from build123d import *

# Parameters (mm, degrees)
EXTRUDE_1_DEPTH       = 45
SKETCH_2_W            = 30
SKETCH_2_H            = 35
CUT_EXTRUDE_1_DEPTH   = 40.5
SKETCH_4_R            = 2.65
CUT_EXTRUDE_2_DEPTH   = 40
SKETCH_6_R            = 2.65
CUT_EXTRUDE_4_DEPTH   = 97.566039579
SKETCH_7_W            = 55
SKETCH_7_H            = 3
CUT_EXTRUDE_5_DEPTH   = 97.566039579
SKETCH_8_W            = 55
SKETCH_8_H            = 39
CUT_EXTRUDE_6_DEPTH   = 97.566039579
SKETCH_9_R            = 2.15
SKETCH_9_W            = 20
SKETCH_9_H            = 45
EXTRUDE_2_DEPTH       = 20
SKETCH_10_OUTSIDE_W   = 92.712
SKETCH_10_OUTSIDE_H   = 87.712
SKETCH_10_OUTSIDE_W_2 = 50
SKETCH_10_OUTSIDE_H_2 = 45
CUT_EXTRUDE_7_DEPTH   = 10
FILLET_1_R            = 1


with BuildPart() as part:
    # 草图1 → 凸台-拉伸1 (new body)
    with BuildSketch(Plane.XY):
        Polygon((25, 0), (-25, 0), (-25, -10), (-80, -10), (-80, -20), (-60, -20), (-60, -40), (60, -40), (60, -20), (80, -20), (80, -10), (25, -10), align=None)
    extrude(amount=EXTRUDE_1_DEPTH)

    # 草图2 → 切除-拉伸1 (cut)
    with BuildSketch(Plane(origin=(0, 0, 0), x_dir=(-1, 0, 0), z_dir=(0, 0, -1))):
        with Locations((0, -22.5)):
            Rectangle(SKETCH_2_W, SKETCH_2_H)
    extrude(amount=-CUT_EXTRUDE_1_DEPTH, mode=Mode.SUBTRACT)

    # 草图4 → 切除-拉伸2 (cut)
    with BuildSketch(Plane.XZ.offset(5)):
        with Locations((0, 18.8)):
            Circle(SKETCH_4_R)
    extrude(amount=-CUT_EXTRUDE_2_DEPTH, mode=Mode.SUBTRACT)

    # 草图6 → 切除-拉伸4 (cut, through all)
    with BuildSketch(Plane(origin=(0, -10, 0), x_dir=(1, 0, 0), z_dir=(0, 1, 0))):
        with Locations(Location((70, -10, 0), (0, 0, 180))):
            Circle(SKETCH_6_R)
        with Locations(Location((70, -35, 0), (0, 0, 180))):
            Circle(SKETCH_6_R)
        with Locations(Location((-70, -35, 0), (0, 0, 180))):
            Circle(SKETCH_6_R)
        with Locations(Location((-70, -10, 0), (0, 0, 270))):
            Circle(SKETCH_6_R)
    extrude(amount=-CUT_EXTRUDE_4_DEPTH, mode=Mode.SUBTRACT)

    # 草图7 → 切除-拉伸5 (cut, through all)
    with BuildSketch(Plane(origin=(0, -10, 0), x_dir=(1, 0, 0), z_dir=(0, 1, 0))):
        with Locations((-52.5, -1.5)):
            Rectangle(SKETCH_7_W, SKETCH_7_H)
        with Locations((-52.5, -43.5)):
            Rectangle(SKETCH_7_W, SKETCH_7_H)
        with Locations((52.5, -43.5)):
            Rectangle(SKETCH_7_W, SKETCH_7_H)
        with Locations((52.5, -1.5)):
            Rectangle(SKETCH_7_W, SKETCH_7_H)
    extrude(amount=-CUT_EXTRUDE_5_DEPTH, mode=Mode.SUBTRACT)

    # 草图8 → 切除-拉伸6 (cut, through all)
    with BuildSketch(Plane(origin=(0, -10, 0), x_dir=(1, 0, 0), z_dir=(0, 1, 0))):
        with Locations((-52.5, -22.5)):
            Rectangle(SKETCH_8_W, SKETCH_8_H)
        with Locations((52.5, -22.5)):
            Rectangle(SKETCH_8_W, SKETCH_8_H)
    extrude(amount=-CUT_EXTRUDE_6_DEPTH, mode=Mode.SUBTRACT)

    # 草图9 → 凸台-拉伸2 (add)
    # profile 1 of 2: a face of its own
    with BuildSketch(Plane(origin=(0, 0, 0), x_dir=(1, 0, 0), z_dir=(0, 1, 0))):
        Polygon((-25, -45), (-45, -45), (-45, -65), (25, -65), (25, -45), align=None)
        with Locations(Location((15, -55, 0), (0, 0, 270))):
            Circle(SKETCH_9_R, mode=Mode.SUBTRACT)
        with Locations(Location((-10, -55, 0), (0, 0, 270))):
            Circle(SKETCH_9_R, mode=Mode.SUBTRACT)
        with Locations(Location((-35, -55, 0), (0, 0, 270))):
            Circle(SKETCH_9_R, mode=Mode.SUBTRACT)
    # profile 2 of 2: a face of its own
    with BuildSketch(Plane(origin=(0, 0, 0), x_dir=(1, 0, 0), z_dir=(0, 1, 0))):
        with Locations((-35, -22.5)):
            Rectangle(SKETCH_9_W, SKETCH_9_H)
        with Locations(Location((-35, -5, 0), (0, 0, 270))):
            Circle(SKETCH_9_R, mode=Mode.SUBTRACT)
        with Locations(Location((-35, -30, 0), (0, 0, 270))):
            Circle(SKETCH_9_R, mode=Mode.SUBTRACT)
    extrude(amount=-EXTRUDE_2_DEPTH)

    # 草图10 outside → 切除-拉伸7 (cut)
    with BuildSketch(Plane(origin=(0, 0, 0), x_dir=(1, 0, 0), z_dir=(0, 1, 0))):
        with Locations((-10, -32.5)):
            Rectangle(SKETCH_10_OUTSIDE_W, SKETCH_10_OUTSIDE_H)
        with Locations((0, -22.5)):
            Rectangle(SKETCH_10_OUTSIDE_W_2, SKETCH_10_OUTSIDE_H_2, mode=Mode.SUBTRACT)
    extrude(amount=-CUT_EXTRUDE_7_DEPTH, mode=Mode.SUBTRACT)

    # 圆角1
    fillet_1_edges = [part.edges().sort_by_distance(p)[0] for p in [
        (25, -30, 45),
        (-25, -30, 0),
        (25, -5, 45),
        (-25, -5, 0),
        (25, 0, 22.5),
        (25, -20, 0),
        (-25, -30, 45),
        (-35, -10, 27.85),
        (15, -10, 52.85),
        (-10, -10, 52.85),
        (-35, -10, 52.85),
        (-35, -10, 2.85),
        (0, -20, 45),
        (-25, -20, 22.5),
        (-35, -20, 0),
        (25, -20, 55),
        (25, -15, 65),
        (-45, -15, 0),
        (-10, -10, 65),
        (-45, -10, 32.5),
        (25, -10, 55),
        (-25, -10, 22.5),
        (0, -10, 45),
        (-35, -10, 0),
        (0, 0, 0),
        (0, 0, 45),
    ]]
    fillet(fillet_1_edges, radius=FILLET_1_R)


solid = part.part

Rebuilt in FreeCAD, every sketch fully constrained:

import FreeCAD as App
import Part
import Sketcher


def edges_at(feature, points):
    """Names of the edges that pass closest to the given points."""
    edges = feature.Shape.Edges
    near = lambda p: min(range(len(edges)), key=lambda i: edges[i].distToShape(Part.Vertex(*p))[0])
    return sorted({f"Edge{near(p) + 1}" for p in points})

doc = App.newDocument("Part")
body = doc.addObject("PartDesign::Body", "Body")

# Sketch on XY plane
sketch1 = body.newObject("Sketcher::SketchObject", "Sketch")
sketch1.AttachmentSupport = (doc.getObject("XY_Plane"), [""])
sketch1.MapMode = "FlatFace"
sketch1.addGeometry(Part.LineSegment(App.Vector(25, 0, 0), App.Vector(-25, 0, 0)), False)
sketch1.addGeometry(Part.LineSegment(App.Vector(-25, 0, 0), App.Vector(-25, -10, 0)), False)
sketch1.addGeometry(Part.LineSegment(App.Vector(-25, -10, 0), App.Vector(-80, -10, 0)), False)
sketch1.addGeometry(Part.LineSegment(App.Vector(-80, -10, 0), App.Vector(-80, -20, 0)), False)
sketch1.addGeometry(Part.LineSegment(App.Vector(-80, -20, 0), App.Vector(-60, -20, 0)), False)
sketch1.addGeometry(Part.LineSegment(App.Vector(-60, -20, 0), App.Vector(-60, -40, 0)), False)
sketch1.addGeometry(Part.LineSegment(App.Vector(-60, -40, 0), App.Vector(60, -40, 0)), False)
sketch1.addGeometry(Part.LineSegment(App.Vector(60, -40, 0), App.Vector(60, -20, 0)), False)
sketch1.addGeometry(Part.LineSegment(App.Vector(60, -20, 0), App.Vector(80, -20, 0)), False)
sketch1.addGeometry(Part.LineSegment(App.Vector(80, -20, 0), App.Vector(80, -10, 0)), False)
sketch1.addGeometry(Part.LineSegment(App.Vector(80, -10, 0), App.Vector(25, -10, 0)), False)
sketch1.addGeometry(Part.LineSegment(App.Vector(25, -10, 0), App.Vector(25, 0, 0)), False)
sketch1.addConstraint(Sketcher.Constraint("Coincident", 0, 2, 1, 1))
sketch1.addConstraint(Sketcher.Constraint("Coincident", 1, 2, 2, 1))
sketch1.addConstraint(Sketcher.Constraint("Coincident", 2, 2, 3, 1))
sketch1.addConstraint(Sketcher.Constraint("Coincident", 3, 2, 4, 1))
sketch1.addConstraint(Sketcher.Constraint("Coincident", 4, 2, 5, 1))
sketch1.addConstraint(Sketcher.Constraint("Coincident", 5, 2, 6, 1))
sketch1.addConstraint(Sketcher.Constraint("Coincident", 6, 2, 7, 1))
sketch1.addConstraint(Sketcher.Constraint("Coincident", 7, 2, 8, 1))
sketch1.addConstraint(Sketcher.Constraint("Coincident", 8, 2, 9, 1))
sketch1.addConstraint(Sketcher.Constraint("Coincident", 9, 2, 10, 1))
sketch1.addConstraint(Sketcher.Constraint("Coincident", 10, 2, 11, 1))
sketch1.addConstraint(Sketcher.Constraint("Coincident", 11, 2, 0, 1))
sketch1.addConstraint(Sketcher.Constraint("Horizontal", 0))
sketch1.addConstraint(Sketcher.Constraint("Vertical", 1))
sketch1.addConstraint(Sketcher.Constraint("Horizontal", 2))
sketch1.addConstraint(Sketcher.Constraint("Vertical", 3))
sketch1.addConstraint(Sketcher.Constraint("Horizontal", 4))
sketch1.addConstraint(Sketcher.Constraint("Vertical", 5))
sketch1.addConstraint(Sketcher.Constraint("Horizontal", 6))
sketch1.addConstraint(Sketcher.Constraint("Vertical", 7))
sketch1.addConstraint(Sketcher.Constraint("Horizontal", 8))
sketch1.addConstraint(Sketcher.Constraint("Vertical", 9))
sketch1.addConstraint(Sketcher.Constraint("Horizontal", 10))
sketch1.addConstraint(Sketcher.Constraint("Vertical", 11))
sketch1.addConstraint(Sketcher.Constraint("Symmetric", 0, 2, 11, 2, -1, 1))
sketch1.addConstraint(Sketcher.Constraint("Symmetric", 4, 2, 7, 2, -2))
sketch1.addConstraint(Sketcher.Constraint("Symmetric", 2, 2, 9, 2, -2))
sketch1.addConstraint(Sketcher.Constraint("Equal", 1, 3))
sketch1.addConstraint(Sketcher.Constraint("Equal", 8, 5))
sketch1.addConstraint(Sketcher.Constraint("DistanceX", 0, 2, 0, 1, 50.0))
sketch1.addConstraint(Sketcher.Constraint("DistanceX", 2, 2, 2, 1, 55.0))
sketch1.addConstraint(Sketcher.Constraint("DistanceX", 4, 1, 4, 2, 20.0))
sketch1.addConstraint(Sketcher.Constraint("DistanceY", 1, 2, 1, 1, 10.0))
pad1 = body.newObject("PartDesign::Pad", "Pad")
pad1.Profile = sketch1
pad1.Length = 45

# Sketch on XY plane
sketch2 = body.newObject("Sketcher::SketchObject", "Sketch001")
sketch2.AttachmentSupport = (doc.getObject("XY_Plane"), [""])
sketch2.MapMode = "FlatFace"
sketch2.addGeometry(Part.LineSegment(App.Vector(15, -5, 0), App.Vector(15, -40, 0)), False)
sketch2.addGeometry(Part.LineSegment(App.Vector(15, -40, 0), App.Vector(-15, -40, 0)), False)
sketch2.addGeometry(Part.LineSegment(App.Vector(-15, -40, 0), App.Vector(-15, -5, 0)), False)
sketch2.addGeometry(Part.LineSegment(App.Vector(-15, -5, 0), App.Vector(15, -5, 0)), False)
sketch2.addConstraint(Sketcher.Constraint("Coincident", 0, 2, 1, 1))
sketch2.addConstraint(Sketcher.Constraint("Coincident", 1, 2, 2, 1))
sketch2.addConstraint(Sketcher.Constraint("Coincident", 2, 2, 3, 1))
sketch2.addConstraint(Sketcher.Constraint("Coincident", 3, 2, 0, 1))
sketch2.addConstraint(Sketcher.Constraint("Vertical", 0))
sketch2.addConstraint(Sketcher.Constraint("Horizontal", 1))
sketch2.addConstraint(Sketcher.Constraint("Vertical", 2))
sketch2.addConstraint(Sketcher.Constraint("Horizontal", 3))
sketch2.addConstraint(Sketcher.Constraint("DistanceX", 1, 2, 1, 1, 30.0))
sketch2.addConstraint(Sketcher.Constraint("DistanceY", 0, 2, 0, 1, 35.0))
sketch2.addConstraint(Sketcher.Constraint("DistanceX", -1, 1, 0, 2, 15.0))
sketch2.addConstraint(Sketcher.Constraint("DistanceY", 0, 2, -1, 1, 40.0))
pocket1 = body.newObject("PartDesign::Pocket", "Pocket")
pocket1.Profile = sketch2
pocket1.Length = 40.5
pocket1.Reversed = True

# Sketch on XZ plane
sketch3 = body.newObject("Sketcher::SketchObject", "Sketch002")
sketch3.AttachmentSupport = (doc.getObject("XZ_Plane"), [""])
sketch3.MapMode = "FlatFace"
sketch3.AttachmentOffset = App.Placement(App.Vector(0, 0, 5), App.Rotation())
sketch3.addGeometry(Part.Circle(App.Vector(0, 18.8, 0), App.Vector(0, 0, 1), 2.65), False)
sketch3.addConstraint(Sketcher.Constraint("PointOnObject", 0, 3, -2))
sketch3.addConstraint(Sketcher.Constraint("Diameter", 0, 5.3))
sketch3.addConstraint(Sketcher.Constraint("DistanceY", -1, 1, 0, 3, 18.8))
pocket2 = body.newObject("PartDesign::Pocket", "Pocket001")
pocket2.Profile = sketch3
pocket2.Length = 40

# Sketch on XZ plane
sketch4 = body.newObject("Sketcher::SketchObject", "Sketch003")
sketch4.AttachmentSupport = (doc.getObject("XZ_Plane"), [""])
sketch4.MapMode = "FlatFace"
sketch4.AttachmentOffset = App.Placement(App.Vector(0, 0, 10), App.Rotation())
sketch4.addGeometry(Part.Circle(App.Vector(70, 10, 0), App.Vector(0, 0, 1), 2.65), False)
sketch4.addGeometry(Part.Circle(App.Vector(70, 35, 0), App.Vector(0, 0, 1), 2.65), False)
sketch4.addGeometry(Part.Circle(App.Vector(-70, 35, 0), App.Vector(0, 0, 1), 2.65), False)
sketch4.addGeometry(Part.Circle(App.Vector(-70, 10, 0), App.Vector(0, 0, 1), 2.65), False)
sketch4.addConstraint(Sketcher.Constraint("Equal", 0, 1))
sketch4.addConstraint(Sketcher.Constraint("Equal", 1, 2))
sketch4.addConstraint(Sketcher.Constraint("Equal", 2, 3))
sketch4.addConstraint(Sketcher.Constraint("Symmetric", 1, 3, 2, 3, -2))
sketch4.addConstraint(Sketcher.Constraint("Symmetric", 0, 3, 3, 3, -2))
sketch4.addConstraint(Sketcher.Constraint("Vertical", 0, 3, 1, 3))
sketch4.addConstraint(Sketcher.Constraint("Diameter", 0, 5.3))
sketch4.addConstraint(Sketcher.Constraint("DistanceX", -1, 1, 0, 3, 70.0))
sketch4.addConstraint(Sketcher.Constraint("DistanceY", -1, 1, 0, 3, 10.0))
sketch4.addConstraint(Sketcher.Constraint("DistanceY", -1, 1, 1, 3, 35.0))
pocket3 = body.newObject("PartDesign::Pocket", "Pocket002")
pocket3.Profile = sketch4
pocket3.Type = "ThroughAll"
pocket3.Reversed = True

# Sketch on XZ plane
sketch5 = body.newObject("Sketcher::SketchObject", "Sketch004")
sketch5.AttachmentSupport = (doc.getObject("XZ_Plane"), [""])
sketch5.MapMode = "FlatFace"
sketch5.AttachmentOffset = App.Placement(App.Vector(0, 0, 10), App.Rotation())
sketch5.addGeometry(Part.LineSegment(App.Vector(-80, 0, 0), App.Vector(-80, 3, 0)), False)
sketch5.addGeometry(Part.LineSegment(App.Vector(-80, 3, 0), App.Vector(-25, 3, 0)), False)
sketch5.addGeometry(Part.LineSegment(App.Vector(-25, 3, 0), App.Vector(-25, 0, 0)), False)
sketch5.addGeometry(Part.LineSegment(App.Vector(-25, 0, 0), App.Vector(-80, 0, 0)), False)
sketch5.addGeometry(Part.LineSegment(App.Vector(-80, 42, 0), App.Vector(-80, 45, 0)), False)
sketch5.addGeometry(Part.LineSegment(App.Vector(-80, 45, 0), App.Vector(-25, 45, 0)), False)
sketch5.addGeometry(Part.LineSegment(App.Vector(-25, 45, 0), App.Vector(-25, 42, 0)), False)
sketch5.addGeometry(Part.LineSegment(App.Vector(-25, 42, 0), App.Vector(-80, 42, 0)), False)
sketch5.addGeometry(Part.LineSegment(App.Vector(25, 42, 0), App.Vector(25, 45, 0)), False)
sketch5.addGeometry(Part.LineSegment(App.Vector(25, 45, 0), App.Vector(80, 45, 0)), False)
sketch5.addGeometry(Part.LineSegment(App.Vector(80, 45, 0), App.Vector(80, 42, 0)), False)
sketch5.addGeometry(Part.LineSegment(App.Vector(80, 42, 0), App.Vector(25, 42, 0)), False)
sketch5.addGeometry(Part.LineSegment(App.Vector(25, 0, 0), App.Vector(25, 3, 0)), False)
sketch5.addGeometry(Part.LineSegment(App.Vector(25, 3, 0), App.Vector(80, 3, 0)), False)
sketch5.addGeometry(Part.LineSegment(App.Vector(80, 3, 0), App.Vector(80, 0, 0)), False)
sketch5.addGeometry(Part.LineSegment(App.Vector(80, 0, 0), App.Vector(25, 0, 0)), False)
sketch5.addConstraint(Sketcher.Constraint("Coincident", 0, 2, 1, 1))
sketch5.addConstraint(Sketcher.Constraint("Coincident", 1, 2, 2, 1))
sketch5.addConstraint(Sketcher.Constraint("Coincident", 2, 2, 3, 1))
sketch5.addConstraint(Sketcher.Constraint("Coincident", 3, 2, 0, 1))
sketch5.addConstraint(Sketcher.Constraint("Coincident", 4, 2, 5, 1))
sketch5.addConstraint(Sketcher.Constraint("Coincident", 5, 2, 6, 1))
sketch5.addConstraint(Sketcher.Constraint("Coincident", 6, 2, 7, 1))
sketch5.addConstraint(Sketcher.Constraint("Coincident", 7, 2, 4, 1))
sketch5.addConstraint(Sketcher.Constraint("Coincident", 8, 2, 9, 1))
sketch5.addConstraint(Sketcher.Constraint("Coincident", 9, 2, 10, 1))
sketch5.addConstraint(Sketcher.Constraint("Coincident", 10, 2, 11, 1))
sketch5.addConstraint(Sketcher.Constraint("Coincident", 11, 2, 8, 1))
sketch5.addConstraint(Sketcher.Constraint("Coincident", 12, 2, 13, 1))
sketch5.addConstraint(Sketcher.Constraint("Coincident", 13, 2, 14, 1))
sketch5.addConstraint(Sketcher.Constraint("Coincident", 14, 2, 15, 1))
sketch5.addConstraint(Sketcher.Constraint("Coincident", 15, 2, 12, 1))
sketch5.addConstraint(Sketcher.Constraint("Vertical", 0))
sketch5.addConstraint(Sketcher.Constraint("Horizontal", 1))
sketch5.addConstraint(Sketcher.Constraint("Vertical", 2))
sketch5.addConstraint(Sketcher.Constraint("Horizontal", 3))
sketch5.addConstraint(Sketcher.Constraint("Vertical", 4))
sketch5.addConstraint(Sketcher.Constraint("Horizontal", 5))
sketch5.addConstraint(Sketcher.Constraint("Vertical", 6))
sketch5.addConstraint(Sketcher.Constraint("Horizontal", 7))
sketch5.addConstraint(Sketcher.Constraint("Vertical", 8))
sketch5.addConstraint(Sketcher.Constraint("Horizontal", 9))
sketch5.addConstraint(Sketcher.Constraint("Vertical", 10))
sketch5.addConstraint(Sketcher.Constraint("Horizontal", 11))
sketch5.addConstraint(Sketcher.Constraint("Vertical", 12))
sketch5.addConstraint(Sketcher.Constraint("Horizontal", 13))
sketch5.addConstraint(Sketcher.Constraint("Vertical", 14))
sketch5.addConstraint(Sketcher.Constraint("Horizontal", 15))
sketch5.addConstraint(Sketcher.Constraint("Symmetric", 3, 2, 14, 2, -1, 1))
sketch5.addConstraint(Sketcher.Constraint("Symmetric", 5, 2, 8, 2, -2))
sketch5.addConstraint(Sketcher.Constraint("Symmetric", 7, 2, 10, 2, -2))
sketch5.addConstraint(Sketcher.Constraint("Symmetric", 1, 2, 12, 2, -2))
sketch5.addConstraint(Sketcher.Constraint("PointOnObject", 2, 2, -1))
sketch5.addConstraint(Sketcher.Constraint("Vertical", 3, 2, 4, 2))
sketch5.addConstraint(Sketcher.Constraint("Vertical", 2, 2, 5, 2))
sketch5.addConstraint(Sketcher.Constraint("Equal", 2, 4))
sketch5.addConstraint(Sketcher.Constraint("DistanceX", 1, 1, 1, 2, 55.0))
sketch5.addConstraint(Sketcher.Constraint("DistanceY", 0, 1, 0, 2, 3.0))
sketch5.addConstraint(Sketcher.Constraint("DistanceX", 0, 2, -1, 1, 80.0))
sketch5.addConstraint(Sketcher.Constraint("DistanceY", -1, 1, 4, 2, 45.0))
pocket4 = body.newObject("PartDesign::Pocket", "Pocket003")
pocket4.Profile = sketch5
pocket4.Type = "ThroughAll"
pocket4.Reversed = True

# Sketch on XZ plane
sketch6 = body.newObject("Sketcher::SketchObject", "Sketch005")
sketch6.AttachmentSupport = (doc.getObject("XZ_Plane"), [""])
sketch6.MapMode = "FlatFace"
sketch6.AttachmentOffset = App.Placement(App.Vector(0, 0, 10), App.Rotation())
sketch6.addGeometry(Part.LineSegment(App.Vector(-80, 3, 0), App.Vector(-80, 42, 0)), False)
sketch6.addGeometry(Part.LineSegment(App.Vector(-80, 42, 0), App.Vector(-25, 42, 0)), False)
sketch6.addGeometry(Part.LineSegment(App.Vector(-25, 42, 0), App.Vector(-25, 3, 0)), False)
sketch6.addGeometry(Part.LineSegment(App.Vector(-25, 3, 0), App.Vector(-80, 3, 0)), False)
sketch6.addGeometry(Part.LineSegment(App.Vector(25, 3, 0), App.Vector(25, 42, 0)), False)
sketch6.addGeometry(Part.LineSegment(App.Vector(25, 42, 0), App.Vector(80, 42, 0)), False)
sketch6.addGeometry(Part.LineSegment(App.Vector(80, 42, 0), App.Vector(80, 3, 0)), False)
sketch6.addGeometry(Part.LineSegment(App.Vector(80, 3, 0), App.Vector(25, 3, 0)), False)
sketch6.addConstraint(Sketcher.Constraint("Coincident", 0, 2, 1, 1))
sketch6.addConstraint(Sketcher.Constraint("Coincident", 1, 2, 2, 1))
sketch6.addConstraint(Sketcher.Constraint("Coincident", 2, 2, 3, 1))
sketch6.addConstraint(Sketcher.Constraint("Coincident", 3, 2, 0, 1))
sketch6.addConstraint(Sketcher.Constraint("Coincident", 4, 2, 5, 1))
sketch6.addConstraint(Sketcher.Constraint("Coincident", 5, 2, 6, 1))
sketch6.addConstraint(Sketcher.Constraint("Coincident", 6, 2, 7, 1))
sketch6.addConstraint(Sketcher.Constraint("Coincident", 7, 2, 4, 1))
sketch6.addConstraint(Sketcher.Constraint("Vertical", 0))
sketch6.addConstraint(Sketcher.Constraint("Horizontal", 1))
sketch6.addConstraint(Sketcher.Constraint("Vertical", 2))
sketch6.addConstraint(Sketcher.Constraint("Horizontal", 3))
sketch6.addConstraint(Sketcher.Constraint("Vertical", 4))
sketch6.addConstraint(Sketcher.Constraint("Horizontal", 5))
sketch6.addConstraint(Sketcher.Constraint("Vertical", 6))
sketch6.addConstraint(Sketcher.Constraint("Horizontal", 7))
sketch6.addConstraint(Sketcher.Constraint("Symmetric", 1, 2, 4, 2, -2))
sketch6.addConstraint(Sketcher.Constraint("Symmetric", 3, 2, 6, 2, -2))
sketch6.addConstraint(Sketcher.Constraint("DistanceX", 1, 1, 1, 2, 55.0))
sketch6.addConstraint(Sketcher.Constraint("DistanceY", 0, 1, 0, 2, 39.0))
sketch6.addConstraint(Sketcher.Constraint("DistanceX", 0, 2, -1, 1, 80.0))
sketch6.addConstraint(Sketcher.Constraint("DistanceY", -1, 1, 0, 2, 42.0))
pocket5 = body.newObject("PartDesign::Pocket", "Pocket004")
pocket5.Profile = sketch6
pocket5.Type = "ThroughAll"
pocket5.Reversed = True

# Sketch on XZ plane
sketch7 = body.newObject("Sketcher::SketchObject", "Sketch006")
sketch7.AttachmentSupport = (doc.getObject("XZ_Plane"), [""])
sketch7.MapMode = "FlatFace"
sketch7.addGeometry(Part.LineSegment(App.Vector(-45, 65, 0), App.Vector(25, 65, 0)), False)
sketch7.addGeometry(Part.LineSegment(App.Vector(25, 65, 0), App.Vector(25, 45, 0)), False)
sketch7.addGeometry(Part.LineSegment(App.Vector(25, 45, 0), App.Vector(-25, 45, 0)), False)
sketch7.addGeometry(Part.LineSegment(App.Vector(-25, 45, 0), App.Vector(-25, 0, 0)), False)
sketch7.addGeometry(Part.LineSegment(App.Vector(-25, 0, 0), App.Vector(-45, 0, 0)), False)
sketch7.addGeometry(Part.LineSegment(App.Vector(-45, 0, 0), App.Vector(-45, 65, 0)), False)
sketch7.addGeometry(Part.Circle(App.Vector(-35, 55, 0), App.Vector(0, 0, 1), 2.15), False)
sketch7.addGeometry(Part.Circle(App.Vector(-10, 55, 0), App.Vector(0, 0, 1), 2.15), False)
sketch7.addGeometry(Part.Circle(App.Vector(15, 55, 0), App.Vector(0, 0, 1), 2.15), False)
sketch7.addGeometry(Part.Circle(App.Vector(-35, 5, 0), App.Vector(0, 0, 1), 2.15), False)
sketch7.addGeometry(Part.Circle(App.Vector(-35, 30, 0), App.Vector(0, 0, 1), 2.15), False)
sketch7.addConstraint(Sketcher.Constraint("Coincident", 0, 2, 1, 1))
sketch7.addConstraint(Sketcher.Constraint("Coincident", 1, 2, 2, 1))
sketch7.addConstraint(Sketcher.Constraint("Coincident", 2, 2, 3, 1))
sketch7.addConstraint(Sketcher.Constraint("Coincident", 3, 2, 4, 1))
sketch7.addConstraint(Sketcher.Constraint("Coincident", 4, 2, 5, 1))
sketch7.addConstraint(Sketcher.Constraint("Coincident", 5, 2, 0, 1))
sketch7.addConstraint(Sketcher.Constraint("Horizontal", 0))
sketch7.addConstraint(Sketcher.Constraint("Vertical", 1))
sketch7.addConstraint(Sketcher.Constraint("Horizontal", 2))
sketch7.addConstraint(Sketcher.Constraint("Vertical", 3))
sketch7.addConstraint(Sketcher.Constraint("Horizontal", 4))
sketch7.addConstraint(Sketcher.Constraint("Vertical", 5))
sketch7.addConstraint(Sketcher.Constraint("Equal", 6, 7))
sketch7.addConstraint(Sketcher.Constraint("Equal", 7, 8))
sketch7.addConstraint(Sketcher.Constraint("Equal", 8, 9))
sketch7.addConstraint(Sketcher.Constraint("Equal", 9, 10))
sketch7.addConstraint(Sketcher.Constraint("PointOnObject", 3, 2, -1))
sketch7.addConstraint(Sketcher.Constraint("Horizontal", 6, 3, 7, 3))
sketch7.addConstraint(Sketcher.Constraint("Horizontal", 7, 3, 8, 3))
sketch7.addConstraint(Sketcher.Constraint("Vertical", 6, 3, 9, 3))
sketch7.addConstraint(Sketcher.Constraint("Vertical", 9, 3, 10, 3))
sketch7.addConstraint(Sketcher.Constraint("Equal", 4, 1))
sketch7.addConstraint(Sketcher.Constraint("Diameter", 6, 4.3))
sketch7.addConstraint(Sketcher.Constraint("DistanceX", 0, 1, 0, 2, 70.0))
sketch7.addConstraint(Sketcher.Constraint("DistanceX", 2, 2, 2, 1, 50.0))
sketch7.addConstraint(Sketcher.Constraint("DistanceY", 3, 2, 3, 1, 45.0))
sketch7.addConstraint(Sketcher.Constraint("DistanceX", 6, 3, -1, 1, 35.0))
sketch7.addConstraint(Sketcher.Constraint("DistanceY", -1, 1, 6, 3, 55.0))
sketch7.addConstraint(Sketcher.Constraint("DistanceX", 7, 3, -1, 1, 10.0))
sketch7.addConstraint(Sketcher.Constraint("DistanceX", -1, 1, 8, 3, 15.0))
sketch7.addConstraint(Sketcher.Constraint("DistanceY", -1, 1, 9, 3, 5.0))
sketch7.addConstraint(Sketcher.Constraint("DistanceY", -1, 1, 10, 3, 30.0))
sketch7.addConstraint(Sketcher.Constraint("DistanceX", -1, 1, 0, 2, 25.0))
pad2 = body.newObject("PartDesign::Pad", "Pad001")
pad2.Profile = sketch7
pad2.Length = 20

# Sketch on XZ plane
sketch8 = body.newObject("Sketcher::SketchObject", "Sketch007")
sketch8.AttachmentSupport = (doc.getObject("XZ_Plane"), [""])
sketch8.MapMode = "FlatFace"
sketch8.addGeometry(Part.LineSegment(App.Vector(-56.356, -11.356, 0), App.Vector(-56.356, 76.356, 0)), False)
sketch8.addGeometry(Part.LineSegment(App.Vector(-56.356, 76.356, 0), App.Vector(36.356, 76.356, 0)), False)
sketch8.addGeometry(Part.LineSegment(App.Vector(36.356, 76.356, 0), App.Vector(36.356, -11.356, 0)), False)
sketch8.addGeometry(Part.LineSegment(App.Vector(36.356, -11.356, 0), App.Vector(-56.356, -11.356, 0)), False)
sketch8.addGeometry(Part.LineSegment(App.Vector(25, 45, 0), App.Vector(-25, 45, 0)), False)
sketch8.addGeometry(Part.LineSegment(App.Vector(-25, 45, 0), App.Vector(-25, 0, 0)), False)
sketch8.addGeometry(Part.LineSegment(App.Vector(-25, 0, 0), App.Vector(25, 0, 0)), False)
sketch8.addGeometry(Part.LineSegment(App.Vector(25, 0, 0), App.Vector(25, 45, 0)), False)
sketch8.addConstraint(Sketcher.Constraint("Coincident", 0, 2, 1, 1))
sketch8.addConstraint(Sketcher.Constraint("Coincident", 1, 2, 2, 1))
sketch8.addConstraint(Sketcher.Constraint("Coincident", 2, 2, 3, 1))
sketch8.addConstraint(Sketcher.Constraint("Coincident", 3, 2, 0, 1))
sketch8.addConstraint(Sketcher.Constraint("Coincident", 4, 2, 5, 1))
sketch8.addConstraint(Sketcher.Constraint("Coincident", 5, 2, 6, 1))
sketch8.addConstraint(Sketcher.Constraint("Coincident", 6, 2, 7, 1))
sketch8.addConstraint(Sketcher.Constraint("Coincident", 7, 2, 4, 1))
sketch8.addConstraint(Sketcher.Constraint("Vertical", 0))
sketch8.addConstraint(Sketcher.Constraint("Horizontal", 1))
sketch8.addConstraint(Sketcher.Constraint("Vertical", 2))
sketch8.addConstraint(Sketcher.Constraint("Horizontal", 3))
sketch8.addConstraint(Sketcher.Constraint("Horizontal", 4))
sketch8.addConstraint(Sketcher.Constraint("Vertical", 5))
sketch8.addConstraint(Sketcher.Constraint("Horizontal", 6))
sketch8.addConstraint(Sketcher.Constraint("Vertical", 7))
sketch8.addConstraint(Sketcher.Constraint("Symmetric", 5, 2, 6, 2, -1, 1))
sketch8.addConstraint(Sketcher.Constraint("DistanceX", 4, 2, 4, 1, 50.0))
sketch8.addConstraint(Sketcher.Constraint("DistanceY", 5, 2, 5, 1, 45.0))
sketch8.addConstraint(Sketcher.Constraint("DistanceX", 1, 1, 1, 2, 92.712))
sketch8.addConstraint(Sketcher.Constraint("DistanceY", 0, 1, 0, 2, 87.712))
sketch8.addConstraint(Sketcher.Constraint("DistanceX", 0, 2, -1, 1, 56.356))
sketch8.addConstraint(Sketcher.Constraint("DistanceY", -1, 1, 0, 2, 76.356))
pocket6 = body.newObject("PartDesign::Pocket", "Pocket005")
pocket6.Profile = sketch8
pocket6.Length = 10
pocket6.Reversed = True
doc.recompute()

fillet = body.newObject("PartDesign::Fillet", "Fillet")
fillet.Base = (pocket6, edges_at(pocket6, [
    (25, -30, 45),
    (-25, -30, 0),
    (25, -5, 45),
    (-25, -5, 0),
    (25, 0, 22.5),
    (25, -20, 0),
    (-25, -30, 45),
    (-35, -10, 27.85),
    (15, -10, 52.85),
    (-10, -10, 52.85),
    (-35, -10, 52.85),
    (-35, -10, 2.85),
    (0, -20, 45),
    (-25, -20, 22.5),
    (-35, -20, 0),
    (25, -20, 55),
    (25, -15, 65),
    (-45, -15, 0),
    (-10, -10, 65),
    (-45, -10, 32.5),
    (25, -10, 55),
    (-25, -10, 22.5),
    (0, -10, 45),
    (-35, -10, 0),
    (0, 0, 0),
    (0, 0, 45),
]))
fillet.Radius = 1

doc.recompute()
